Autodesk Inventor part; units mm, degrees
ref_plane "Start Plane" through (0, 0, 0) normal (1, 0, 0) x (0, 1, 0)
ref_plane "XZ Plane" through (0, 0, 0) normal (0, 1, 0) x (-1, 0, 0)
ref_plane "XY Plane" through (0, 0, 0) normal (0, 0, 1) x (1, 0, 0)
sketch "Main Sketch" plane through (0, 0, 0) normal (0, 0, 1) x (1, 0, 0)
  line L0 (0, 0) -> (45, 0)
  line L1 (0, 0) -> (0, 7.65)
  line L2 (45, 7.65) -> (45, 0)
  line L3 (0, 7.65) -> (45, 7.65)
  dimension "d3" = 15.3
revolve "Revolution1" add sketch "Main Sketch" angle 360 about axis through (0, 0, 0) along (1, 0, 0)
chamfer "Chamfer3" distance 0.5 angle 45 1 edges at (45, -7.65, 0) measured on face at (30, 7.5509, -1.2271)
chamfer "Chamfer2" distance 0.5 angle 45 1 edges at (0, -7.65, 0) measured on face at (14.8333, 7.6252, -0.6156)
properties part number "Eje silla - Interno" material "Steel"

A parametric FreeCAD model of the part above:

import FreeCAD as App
import Part
import Sketcher
Q = App.Units.Quantity


def edges_at(feature, points):
    """Names of the edges that pass closest to the given points."""
    edges = feature.Shape.Edges
    near = lambda p: min(range(len(edges)), key=lambda i: edges[i].distToShape(Part.Vertex(*p))[0])
    return sorted({f"Edge{near(p) + 1}" for p in points})


def add_polygon(sketch, points):
    """Adds a closed chain of lines whose ends are joined by coincident constraints."""
    first, n = sketch.GeometryCount, len(points)
    for a, b in zip(points, points[1:] + points[:1]):
        sketch.addGeometry(Part.LineSegment(App.Vector(*a, 0), App.Vector(*b, 0)), False)
    for i in range(n):
        sketch.addConstraint(Sketcher.Constraint("Coincident", first + i, 2, first + (i + 1) % n, 1))

doc = App.newDocument("Part")
body = doc.addObject("PartDesign::Body", "Body")

# Sketch on XY plane
sketch1 = body.newObject("Sketcher::SketchObject", "Sketch")
sketch1.AttachmentSupport = (doc.getObject("XY_Plane"), [""])
sketch1.MapMode = "FlatFace"
add_polygon(sketch1, [(0, 7.65), (0, 0), (45, 0), (45, 7.65)])  # lines 0-3
sketch1.addConstraint([
    Sketcher.Constraint("Vertical", 0),
    Sketcher.Constraint("Horizontal", 1),
    Sketcher.Constraint("Vertical", 2),
    Sketcher.Constraint("Horizontal", 3),
    Sketcher.Constraint("Coincident", 0, 2, -1, 1),
    Sketcher.Constraint("DistanceX", 1, 1, 1, 2, Q("45 mm")),
    Sketcher.Constraint("DistanceY", 0, 2, 0, 1, Q("7.65 mm")),
])
revolution = body.newObject("PartDesign::Revolution", "Revolution")
revolution.Profile = sketch1
revolution.ReferenceAxis = (sketch1, ["H_Axis"])
revolution.Angle = 360
doc.recompute()

chamfer = body.newObject("PartDesign::Chamfer", "Chamfer")
chamfer.Base = (revolution, edges_at(revolution, [(45, -7.65, 0)]))
chamfer.Size = 0.5
doc.recompute()

chamfer2 = body.newObject("PartDesign::Chamfer", "Chamfer001")
chamfer2.Base = (chamfer, edges_at(chamfer, [(0, -7.65, 0)]))
chamfer2.Size = 0.5

doc.recompute()
